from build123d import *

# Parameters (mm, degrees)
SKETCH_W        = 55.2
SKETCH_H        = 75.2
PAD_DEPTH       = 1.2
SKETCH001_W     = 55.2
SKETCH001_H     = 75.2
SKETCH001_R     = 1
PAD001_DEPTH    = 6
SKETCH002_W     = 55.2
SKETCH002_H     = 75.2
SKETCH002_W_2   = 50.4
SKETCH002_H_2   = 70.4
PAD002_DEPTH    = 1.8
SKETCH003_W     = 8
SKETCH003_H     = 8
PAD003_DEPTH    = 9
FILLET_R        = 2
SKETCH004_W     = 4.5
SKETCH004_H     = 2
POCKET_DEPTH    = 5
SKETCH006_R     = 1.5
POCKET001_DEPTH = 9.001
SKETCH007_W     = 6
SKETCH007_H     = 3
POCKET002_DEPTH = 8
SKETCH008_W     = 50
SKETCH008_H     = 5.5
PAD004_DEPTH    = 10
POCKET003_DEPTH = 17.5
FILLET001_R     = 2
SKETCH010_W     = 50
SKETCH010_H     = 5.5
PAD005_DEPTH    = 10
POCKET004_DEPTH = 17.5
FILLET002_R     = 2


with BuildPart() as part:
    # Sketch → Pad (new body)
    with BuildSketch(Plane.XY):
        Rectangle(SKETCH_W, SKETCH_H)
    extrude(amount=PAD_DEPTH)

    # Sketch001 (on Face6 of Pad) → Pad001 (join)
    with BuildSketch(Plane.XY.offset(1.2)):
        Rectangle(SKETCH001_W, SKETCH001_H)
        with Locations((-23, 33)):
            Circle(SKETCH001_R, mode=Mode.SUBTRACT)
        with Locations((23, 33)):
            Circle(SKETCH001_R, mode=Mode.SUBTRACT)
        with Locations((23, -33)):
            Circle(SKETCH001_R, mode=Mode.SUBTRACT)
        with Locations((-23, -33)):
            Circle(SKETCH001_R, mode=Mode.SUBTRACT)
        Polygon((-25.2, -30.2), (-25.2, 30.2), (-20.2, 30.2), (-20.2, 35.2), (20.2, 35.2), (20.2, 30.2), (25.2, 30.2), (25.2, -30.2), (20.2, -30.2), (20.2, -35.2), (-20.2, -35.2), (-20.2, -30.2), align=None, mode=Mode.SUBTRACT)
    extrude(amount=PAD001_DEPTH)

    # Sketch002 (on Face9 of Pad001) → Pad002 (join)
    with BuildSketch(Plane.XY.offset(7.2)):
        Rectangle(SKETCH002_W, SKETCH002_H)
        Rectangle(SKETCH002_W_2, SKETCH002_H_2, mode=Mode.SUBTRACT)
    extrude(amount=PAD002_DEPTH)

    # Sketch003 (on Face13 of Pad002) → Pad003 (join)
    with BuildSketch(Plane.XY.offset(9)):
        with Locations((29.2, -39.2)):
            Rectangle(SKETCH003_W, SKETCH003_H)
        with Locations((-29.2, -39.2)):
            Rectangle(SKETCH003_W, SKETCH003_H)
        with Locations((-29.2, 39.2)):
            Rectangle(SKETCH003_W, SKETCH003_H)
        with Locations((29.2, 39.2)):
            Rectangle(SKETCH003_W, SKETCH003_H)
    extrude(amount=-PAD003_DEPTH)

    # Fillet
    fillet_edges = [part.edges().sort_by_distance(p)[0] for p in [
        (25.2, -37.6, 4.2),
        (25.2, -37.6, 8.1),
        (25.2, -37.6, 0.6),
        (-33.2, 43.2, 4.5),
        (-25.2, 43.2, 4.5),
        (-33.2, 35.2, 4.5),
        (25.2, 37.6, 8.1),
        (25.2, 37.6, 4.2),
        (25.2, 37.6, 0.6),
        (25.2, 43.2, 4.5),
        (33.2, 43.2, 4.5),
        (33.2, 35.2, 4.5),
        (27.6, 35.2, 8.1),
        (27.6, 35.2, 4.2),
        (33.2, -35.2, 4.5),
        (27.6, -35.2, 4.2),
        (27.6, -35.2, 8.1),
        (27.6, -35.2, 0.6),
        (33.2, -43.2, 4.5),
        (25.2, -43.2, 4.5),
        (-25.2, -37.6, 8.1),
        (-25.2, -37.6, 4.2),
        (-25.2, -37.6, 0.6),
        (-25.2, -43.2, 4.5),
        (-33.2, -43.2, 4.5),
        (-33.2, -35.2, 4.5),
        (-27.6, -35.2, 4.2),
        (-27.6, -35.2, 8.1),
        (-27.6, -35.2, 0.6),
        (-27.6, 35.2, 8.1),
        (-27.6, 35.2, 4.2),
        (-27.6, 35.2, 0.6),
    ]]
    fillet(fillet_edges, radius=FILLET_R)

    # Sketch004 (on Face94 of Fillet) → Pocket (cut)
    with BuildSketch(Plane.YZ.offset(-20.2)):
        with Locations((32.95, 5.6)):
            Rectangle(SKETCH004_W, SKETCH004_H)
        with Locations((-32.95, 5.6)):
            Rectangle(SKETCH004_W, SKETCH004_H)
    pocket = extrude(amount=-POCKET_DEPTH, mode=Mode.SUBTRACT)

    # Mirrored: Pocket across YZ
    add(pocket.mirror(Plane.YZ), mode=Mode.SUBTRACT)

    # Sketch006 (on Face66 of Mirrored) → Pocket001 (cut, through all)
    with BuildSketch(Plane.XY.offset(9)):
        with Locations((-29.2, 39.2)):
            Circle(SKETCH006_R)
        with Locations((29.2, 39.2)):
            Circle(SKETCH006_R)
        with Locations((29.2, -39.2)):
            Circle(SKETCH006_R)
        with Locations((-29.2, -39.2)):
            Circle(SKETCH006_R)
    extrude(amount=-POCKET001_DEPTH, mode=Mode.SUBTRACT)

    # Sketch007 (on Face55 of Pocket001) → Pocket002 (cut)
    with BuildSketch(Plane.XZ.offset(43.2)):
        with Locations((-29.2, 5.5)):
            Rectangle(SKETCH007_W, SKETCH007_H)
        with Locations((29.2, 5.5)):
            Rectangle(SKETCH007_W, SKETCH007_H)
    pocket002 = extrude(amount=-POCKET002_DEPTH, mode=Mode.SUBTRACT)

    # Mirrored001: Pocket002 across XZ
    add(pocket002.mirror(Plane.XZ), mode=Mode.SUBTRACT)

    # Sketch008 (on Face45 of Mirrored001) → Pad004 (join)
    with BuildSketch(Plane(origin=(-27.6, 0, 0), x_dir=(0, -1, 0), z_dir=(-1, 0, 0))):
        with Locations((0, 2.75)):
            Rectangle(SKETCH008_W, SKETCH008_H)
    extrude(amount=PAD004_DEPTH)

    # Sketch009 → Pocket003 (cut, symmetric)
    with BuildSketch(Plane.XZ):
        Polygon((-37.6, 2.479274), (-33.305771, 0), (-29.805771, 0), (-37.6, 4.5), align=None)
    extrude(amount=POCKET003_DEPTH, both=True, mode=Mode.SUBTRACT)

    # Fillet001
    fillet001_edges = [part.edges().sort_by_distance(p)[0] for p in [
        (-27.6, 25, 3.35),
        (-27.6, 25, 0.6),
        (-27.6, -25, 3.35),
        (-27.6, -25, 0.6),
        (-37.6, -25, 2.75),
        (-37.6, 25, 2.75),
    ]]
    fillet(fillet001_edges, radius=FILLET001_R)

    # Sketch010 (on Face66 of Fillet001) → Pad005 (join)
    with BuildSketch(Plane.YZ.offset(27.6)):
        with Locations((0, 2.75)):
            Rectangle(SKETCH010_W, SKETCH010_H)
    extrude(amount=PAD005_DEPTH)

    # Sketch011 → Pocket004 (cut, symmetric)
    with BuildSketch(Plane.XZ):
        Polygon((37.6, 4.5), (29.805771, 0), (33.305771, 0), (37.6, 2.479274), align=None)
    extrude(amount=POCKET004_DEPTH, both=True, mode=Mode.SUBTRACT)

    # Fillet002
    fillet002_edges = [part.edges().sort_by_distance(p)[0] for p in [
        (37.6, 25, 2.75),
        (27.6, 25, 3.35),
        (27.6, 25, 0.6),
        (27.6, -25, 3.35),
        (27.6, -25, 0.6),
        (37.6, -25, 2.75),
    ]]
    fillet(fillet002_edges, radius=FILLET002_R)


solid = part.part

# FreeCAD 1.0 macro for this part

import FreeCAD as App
import Part
import Sketcher

V = App.Vector
Q = App.Units.Quantity


def edges_at(feature, points):
    """Names of the edges that pass closest to the given points."""
    edges = feature.Shape.Edges
    near = lambda p: min(range(len(edges)), key=lambda i: edges[i].distToShape(Part.Vertex(*p))[0])
    return sorted({f"Edge{near(p) + 1}" for p in points})

doc = App.newDocument("Part")
body = doc.addObject("PartDesign::Body", "Body")

sketch1 = body.newObject("Sketcher::SketchObject", "Sketch")
sketch1.AttachmentSupport = (doc.getObject("XY_Plane"), [""])
sketch1.MapMode = "FlatFace"
sketch1.addGeometry([
    Part.LineSegment(V(-27.6, 37.6, 0), V(-27.6, -37.6, 0)),
    Part.LineSegment(V(-27.6, -37.6, 0), V(27.6, -37.6, 0)),
    Part.LineSegment(V(27.6, -37.6, 0), V(27.6, 37.6, 0)),
    Part.LineSegment(V(27.6, 37.6, 0), V(-27.6, 37.6, 0)),
], False)
sketch1.addConstraint([
    Sketcher.Constraint("Coincident", 0, 2, 1, 1),
    Sketcher.Constraint("Coincident", 1, 2, 2, 1),
    Sketcher.Constraint("Coincident", 2, 2, 3, 1),
    Sketcher.Constraint("Coincident", 3, 2, 0, 1),
    Sketcher.Constraint("Vertical", 0),
    Sketcher.Constraint("Horizontal", 1),
    Sketcher.Constraint("Vertical", 2),
    Sketcher.Constraint("Horizontal", 3),
    Sketcher.Constraint("Symmetric", 0, 2, 2, 2, -1, 1),
    Sketcher.Constraint("DistanceX", 1, 1, 1, 2, 55.2),
    Sketcher.Constraint("DistanceY", 0, 2, 0, 1, 75.2),
])
pad1 = body.newObject("PartDesign::Pad", "Pad")
pad1.Profile = sketch1
pad1.Length = 1.2

sketch2 = body.newObject("Sketcher::SketchObject", "Sketch001")
sketch2.AttachmentSupport = (doc.getObject("XY_Plane"), [""])
sketch2.MapMode = "FlatFace"
sketch2.AttachmentOffset = App.Placement(V(0, 0, 1.2), App.Rotation())
sketch2.addGeometry([
    Part.LineSegment(V(-27.6, 37.6, 0), V(-27.6, -37.6, 0)),
    Part.LineSegment(V(-27.6, -37.6, 0), V(27.6, -37.6, 0)),
    Part.LineSegment(V(27.6, -37.6, 0), V(27.6, 37.6, 0)),
    Part.LineSegment(V(27.6, 37.6, 0), V(-27.6, 37.6, 0)),
    Part.Circle(V(-23, -33, 0), V(0, 0, 1), 1),
    Part.Circle(V(23, -33, 0), V(0, 0, 1), 1),
    Part.LineSegment(V(-20.2, -30.2, 0), V(-25.2, -30.2, 0)),
    Part.LineSegment(V(-25.2, -30.2, 0), V(-25.2, 30.2, 0)),
    Part.LineSegment(V(-25.2, 30.2, 0), V(-20.2, 30.2, 0)),
    Part.LineSegment(V(-20.2, 30.2, 0), V(-20.2, 35.2, 0)),
    Part.LineSegment(V(-20.2, 35.2, 0), V(20.2, 35.2, 0)),
    Part.LineSegment(V(20.2, 35.2, 0), V(20.2, 30.2, 0)),
    Part.LineSegment(V(20.2, 30.2, 0), V(25.2, 30.2, 0)),
    Part.LineSegment(V(25.2, 30.2, 0), V(25.2, -30.2, 0)),
    Part.LineSegment(V(25.2, -30.2, 0), V(20.2, -30.2, 0)),
    Part.LineSegment(V(20.2, -30.2, 0), V(20.2, -35.2, 0)),
    Part.LineSegment(V(20.2, -35.2, 0), V(-20.2, -35.2, 0)),
    Part.LineSegment(V(-20.2, -35.2, 0), V(-20.2, -30.2, 0)),
    Part.Circle(V(-23, 33, 0), V(0, 0, 1), 1),
    Part.Circle(V(23, 33, 0), V(0, 0, 1), 1),
], False)
sketch2.addConstraint([
    Sketcher.Constraint("Coincident", 0, 2, 1, 1),
    Sketcher.Constraint("Coincident", 1, 2, 2, 1),
    Sketcher.Constraint("Coincident", 2, 2, 3, 1),
    Sketcher.Constraint("Coincident", 3, 2, 0, 1),
    Sketcher.Constraint("Coincident", 6, 2, 7, 1),
    Sketcher.Constraint("Coincident", 7, 2, 8, 1),
    Sketcher.Constraint("Coincident", 8, 2, 9, 1),
    Sketcher.Constraint("Coincident", 9, 2, 10, 1),
    Sketcher.Constraint("Coincident", 10, 2, 11, 1),
    Sketcher.Constraint("Coincident", 11, 2, 12, 1),
    Sketcher.Constraint("Coincident", 12, 2, 13, 1),
    Sketcher.Constraint("Coincident", 13, 2, 14, 1),
    Sketcher.Constraint("Coincident", 14, 2, 15, 1),
    Sketcher.Constraint("Coincident", 15, 2, 16, 1),
    Sketcher.Constraint("Coincident", 16, 2, 17, 1),
    Sketcher.Constraint("Coincident", 17, 2, 6, 1),
    Sketcher.Constraint("Vertical", 0),
    Sketcher.Constraint("Horizontal", 1),
    Sketcher.Constraint("Vertical", 2),
    Sketcher.Constraint("Horizontal", 3),
    Sketcher.Constraint("Horizontal", 6),
    Sketcher.Constraint("Vertical", 7),
    Sketcher.Constraint("Horizontal", 8),
    Sketcher.Constraint("Vertical", 9),
    Sketcher.Constraint("Horizontal", 10),
    Sketcher.Constraint("Vertical", 11),
    Sketcher.Constraint("Horizontal", 12),
    Sketcher.Constraint("Vertical", 13),
    Sketcher.Constraint("Horizontal", 14),
    Sketcher.Constraint("Vertical", 15),
    Sketcher.Constraint("Horizontal", 16),
    Sketcher.Constraint("Vertical", 17),
    Sketcher.Constraint("Equal", 4, 5),
    Sketcher.Constraint("Equal", 5, 18),
    Sketcher.Constraint("Equal", 18, 19),
    Sketcher.Constraint("Symmetric", 5, 3, 18, 3, -1, 1),
    Sketcher.Constraint("Symmetric", 4, 3, 19, 3, -1, 1),
    Sketcher.Constraint("Symmetric", 0, 2, 2, 2, -1, 1),
    Sketcher.Constraint("Symmetric", 6, 2, 12, 2, -1, 1),
    Sketcher.Constraint("Symmetric", 8, 2, 14, 2, -1, 1),
    Sketcher.Constraint("Symmetric", 10, 2, 16, 2, -1, 1),
    Sketcher.Constraint("Symmetric", 4, 3, 5, 3, -2),
    Sketcher.Constraint("Symmetric", 8, 2, 11, 2, -2),
    Sketcher.Constraint("Equal", 14, 9),
    Sketcher.Constraint("Diameter", 4, 2.0),
    Sketcher.Constraint("DistanceX", 6, 2, 6, 1, 5.0),
    Sketcher.Constraint("DistanceX", 1, 1, 1, 2, 55.2),
    Sketcher.Constraint("DistanceX", 10, 1, 10, 2, 40.4),
    Sketcher.Constraint("DistanceY", 0, 2, 0, 1, 75.2),
    Sketcher.Constraint("DistanceY", 7, 1, 7, 2, 60.4),
    Sketcher.Constraint("DistanceX", 4, 3, -1, 1, 23.0),
    Sketcher.Constraint("DistanceY", 4, 3, -1, 1, 33.0),
])
pad2 = body.newObject("PartDesign::Pad", "Pad001")
pad2.Profile = sketch2
pad2.Length = 6

sketch3 = body.newObject("Sketcher::SketchObject", "Sketch002")
sketch3.AttachmentSupport = (doc.getObject("XY_Plane"), [""])
sketch3.MapMode = "FlatFace"
sketch3.AttachmentOffset = App.Placement(V(0, 0, 7.2), App.Rotation())
sketch3.addGeometry([
    Part.LineSegment(V(-27.6, 37.6, 0), V(-27.6, -37.6, 0)),
    Part.LineSegment(V(-27.6, -37.6, 0), V(27.6, -37.6, 0)),
    Part.LineSegment(V(27.6, -37.6, 0), V(27.6, 37.6, 0)),
    Part.LineSegment(V(27.6, 37.6, 0), V(-27.6, 37.6, 0)),
    Part.LineSegment(V(25.2, -35.2, 0), V(-25.2, -35.2, 0)),
    Part.LineSegment(V(-25.2, -35.2, 0), V(-25.2, 35.2, 0)),
    Part.LineSegment(V(-25.2, 35.2, 0), V(25.2, 35.2, 0)),
    Part.LineSegment(V(25.2, 35.2, 0), V(25.2, -35.2, 0)),
], False)
sketch3.addConstraint([
    Sketcher.Constraint("Coincident", 0, 2, 1, 1),
    Sketcher.Constraint("Coincident", 1, 2, 2, 1),
    Sketcher.Constraint("Coincident", 2, 2, 3, 1),
    Sketcher.Constraint("Coincident", 3, 2, 0, 1),
    Sketcher.Constraint("Coincident", 4, 2, 5, 1),
    Sketcher.Constraint("Coincident", 5, 2, 6, 1),
    Sketcher.Constraint("Coincident", 6, 2, 7, 1),
    Sketcher.Constraint("Coincident", 7, 2, 4, 1),
    Sketcher.Constraint("Vertical", 0),
    Sketcher.Constraint("Horizontal", 1),
    Sketcher.Constraint("Vertical", 2),
    Sketcher.Constraint("Horizontal", 3),
    Sketcher.Constraint("Horizontal", 4),
    Sketcher.Constraint("Vertical", 5),
    Sketcher.Constraint("Horizontal", 6),
    Sketcher.Constraint("Vertical", 7),
    Sketcher.Constraint("Symmetric", 0, 2, 2, 2, -1, 1),
    Sketcher.Constraint("Symmetric", 4, 2, 6, 2, -1, 1),
    Sketcher.Constraint("DistanceX", 1, 1, 1, 2, 55.2),
    Sketcher.Constraint("DistanceX", 4, 2, 4, 1, 50.4),
    Sketcher.Constraint("DistanceY", 0, 2, 0, 1, 75.2),
    Sketcher.Constraint("DistanceY", 5, 1, 5, 2, 70.4),
])
pad3 = body.newObject("PartDesign::Pad", "Pad002")
pad3.Profile = sketch3
pad3.Length = 1.8

sketch4 = body.newObject("Sketcher::SketchObject", "Sketch003")
sketch4.AttachmentSupport = (doc.getObject("XY_Plane"), [""])
sketch4.MapMode = "FlatFace"
sketch4.AttachmentOffset = App.Placement(V(0, 0, 9), App.Rotation())
sketch4.addGeometry([
    Part.LineSegment(V(25.2, -35.2, 0), V(25.2, -43.2, 0)),
    Part.LineSegment(V(25.2, -43.2, 0), V(33.2, -43.2, 0)),
    Part.LineSegment(V(33.2, -43.2, 0), V(33.2, -35.2, 0)),
    Part.LineSegment(V(33.2, -35.2, 0), V(25.2, -35.2, 0)),
    Part.LineSegment(V(-33.2, -35.2, 0), V(-33.2, -43.2, 0)),
    Part.LineSegment(V(-33.2, -43.2, 0), V(-25.2, -43.2, 0)),
    Part.LineSegment(V(-25.2, -43.2, 0), V(-25.2, -35.2, 0)),
    Part.LineSegment(V(-25.2, -35.2, 0), V(-33.2, -35.2, 0)),
    Part.LineSegment(V(-33.2, 43.2, 0), V(-33.2, 35.2, 0)),
    Part.LineSegment(V(-33.2, 35.2, 0), V(-25.2, 35.2, 0)),
    Part.LineSegment(V(-25.2, 35.2, 0), V(-25.2, 43.2, 0)),
    Part.LineSegment(V(-25.2, 43.2, 0), V(-33.2, 43.2, 0)),
    Part.LineSegment(V(25.2, 43.2, 0), V(25.2, 35.2, 0)),
    Part.LineSegment(V(25.2, 35.2, 0), V(33.2, 35.2, 0)),
    Part.LineSegment(V(33.2, 35.2, 0), V(33.2, 43.2, 0)),
    Part.LineSegment(V(33.2, 43.2, 0), V(25.2, 43.2, 0)),
], False)
sketch4.addConstraint([
    Sketcher.Constraint("Coincident", 0, 2, 1, 1),
    Sketcher.Constraint("Coincident", 1, 2, 2, 1),
    Sketcher.Constraint("Coincident", 2, 2, 3, 1),
    Sketcher.Constraint("Coincident", 3, 2, 0, 1),
    Sketcher.Constraint("Coincident", 4, 2, 5, 1),
    Sketcher.Constraint("Coincident", 5, 2, 6, 1),
    Sketcher.Constraint("Coincident", 6, 2, 7, 1),
    Sketcher.Constraint("Coincident", 7, 2, 4, 1),
    Sketcher.Constraint("Coincident", 8, 2, 9, 1),
    Sketcher.Constraint("Coincident", 9, 2, 10, 1),
    Sketcher.Constraint("Coincident", 10, 2, 11, 1),
    Sketcher.Constraint("Coincident", 11, 2, 8, 1),
    Sketcher.Constraint("Coincident", 12, 2, 13, 1),
    Sketcher.Constraint("Coincident", 13, 2, 14, 1),
    Sketcher.Constraint("Coincident", 14, 2, 15, 1),
    Sketcher.Constraint("Coincident", 15, 2, 12, 1),
    Sketcher.Constraint("Vertical", 0),
    Sketcher.Constraint("Horizontal", 1),
    Sketcher.Constraint("Vertical", 2),
    Sketcher.Constraint("Horizontal", 3),
    Sketcher.Constraint("Vertical", 4),
    Sketcher.Constraint("Horizontal", 5),
    Sketcher.Constraint("Vertical", 6),
    Sketcher.Constraint("Horizontal", 7),
    Sketcher.Constraint("Vertical", 8),
    Sketcher.Constraint("Horizontal", 9),
    Sketcher.Constraint("Vertical", 10),
    Sketcher.Constraint("Horizontal", 11),
    Sketcher.Constraint("Vertical", 12),
    Sketcher.Constraint("Horizontal", 13),
    Sketcher.Constraint("Vertical", 14),
    Sketcher.Constraint("Horizontal", 15),
    Sketcher.Constraint("Symmetric", 2, 2, 8, 2, -1, 1),
    Sketcher.Constraint("Symmetric", 0, 2, 10, 2, -1, 1),
    Sketcher.Constraint("Symmetric", 6, 2, 12, 2, -1, 1),
    Sketcher.Constraint("Symmetric", 4, 2, 14, 2, -1, 1),
    Sketcher.Constraint("Symmetric", 1, 2, 4, 2, -2),
    Sketcher.Constraint("Symmetric", 3, 2, 6, 2, -2),
    Sketcher.Constraint("Equal", 15, 0),
    Sketcher.Constraint("DistanceX", 1, 1, 1, 2, 8.0),
    Sketcher.Constraint("DistanceX", -1, 1, 0, 2, 25.2),
    Sketcher.Constraint("DistanceY", 0, 2, -1, 1, 43.2),
])
pad4 = body.newObject("PartDesign::Pad", "Pad003")
pad4.Profile = sketch4
pad4.Length = 9
pad4.Reversed = True
doc.recompute()

fillet = body.newObject("PartDesign::Fillet", "Fillet")
fillet.Base = (pad4, edges_at(pad4, [
    (25.2, -37.6, 4.5),
    (25.2, -37.6, 4.5),
    (25.2, -37.6, 4.5),
    (-33.2, 43.2, 4.5),
    (-25.2, 43.2, 4.5),
    (-33.2, 35.2, 4.5),
    (25.2, 37.6, 4.5),
    (25.2, 37.6, 4.5),
    (25.2, 37.6, 4.5),
    (25.2, 43.2, 4.5),
    (33.2, 43.2, 4.5),
    (33.2, 35.2, 4.5),
    (27.6, 35.2, 4.5),
    (27.6, 35.2, 4.5),
    (33.2, -35.2, 4.5),
    (27.6, -35.2, 4.5),
    (27.6, -35.2, 4.5),
    (27.6, -35.2, 4.5),
    (33.2, -43.2, 4.5),
    (25.2, -43.2, 4.5),
    (-25.2, -37.6, 4.5),
    (-25.2, -37.6, 4.5),
    (-25.2, -37.6, 4.5),
    (-25.2, -43.2, 4.5),
    (-33.2, -43.2, 4.5),
    (-33.2, -35.2, 4.5),
    (-27.6, -35.2, 4.5),
    (-27.6, -35.2, 4.5),
    (-27.6, -35.2, 4.5),
    (-27.6, 35.2, 4.5),
    (-27.6, 35.2, 4.5),
    (-27.6, 35.2, 4.5),
]))
fillet.Radius = 2

sketch5 = body.newObject("Sketcher::SketchObject", "Sketch004")
sketch5.AttachmentSupport = (doc.getObject("YZ_Plane"), [""])
sketch5.MapMode = "FlatFace"
sketch5.AttachmentOffset = App.Placement(V(0, 0, -20.2), App.Rotation())
sketch5.addGeometry([
    Part.LineSegment(V(30.7, 6.6, 0), V(30.7, 4.6, 0)),
    Part.LineSegment(V(30.7, 4.6, 0), V(35.2, 4.6, 0)),
    Part.LineSegment(V(35.2, 4.6, 0), V(35.2, 6.6, 0)),
    Part.LineSegment(V(35.2, 6.6, 0), V(30.7, 6.6, 0)),
    Part.LineSegment(V(-35.2, 6.6, 0), V(-35.2, 4.6, 0)),
    Part.LineSegment(V(-35.2, 4.6, 0), V(-30.7, 4.6, 0)),
    Part.LineSegment(V(-30.7, 4.6, 0), V(-30.7, 6.6, 0)),
    Part.LineSegment(V(-30.7, 6.6, 0), V(-35.2, 6.6, 0)),
], False)
sketch5.addConstraint([
    Sketcher.Constraint("Coincident", 0, 2, 1, 1),
    Sketcher.Constraint("Coincident", 1, 2, 2, 1),
    Sketcher.Constraint("Coincident", 2, 2, 3, 1),
    Sketcher.Constraint("Coincident", 3, 2, 0, 1),
    Sketcher.Constraint("Coincident", 4, 2, 5, 1),
    Sketcher.Constraint("Coincident", 5, 2, 6, 1),
    Sketcher.Constraint("Coincident", 6, 2, 7, 1),
    Sketcher.Constraint("Coincident", 7, 2, 4, 1),
    Sketcher.Constraint("Vertical", 0),
    Sketcher.Constraint("Horizontal", 1),
    Sketcher.Constraint("Vertical", 2),
    Sketcher.Constraint("Horizontal", 3),
    Sketcher.Constraint("Vertical", 4),
    Sketcher.Constraint("Horizontal", 5),
    Sketcher.Constraint("Vertical", 6),
    Sketcher.Constraint("Horizontal", 7),
    Sketcher.Constraint("Symmetric", 1, 2, 4, 2, -2),
    Sketcher.Constraint("Symmetric", 3, 2, 6, 2, -2),
    Sketcher.Constraint("DistanceY", 0, 2, 0, 1, 2.0),
    Sketcher.Constraint("DistanceX", 1, 1, 1, 2, 4.5),
    Sketcher.Constraint("DistanceX", -1, 1, 0, 2, 30.7),
    Sketcher.Constraint("DistanceY", -1, 1, 0, 2, 4.6),
])
pocket1 = body.newObject("PartDesign::Pocket", "Pocket")
pocket1.Profile = sketch5
pocket1.Length = 5
doc.recompute()

mirrored = body.newObject("PartDesign::Mirrored", "Mirrored")
mirrored.Originals = [pocket1]
mirrored.MirrorPlane = (doc.getObject("YZ_Plane"), [""])
body.Tip = mirrored

sketch6 = body.newObject("Sketcher::SketchObject", "Sketch005")
sketch6.AttachmentSupport = (doc.getObject("XY_Plane"), [""])
sketch6.MapMode = "FlatFace"
sketch6.AttachmentOffset = App.Placement(V(0, 0, 9), App.Rotation())
sketch6.addGeometry([
    Part.Circle(V(-29.2, 39.2, 0), V(0, 0, 1), 1.5),
    Part.Circle(V(29.2, 39.2, 0), V(0, 0, 1), 1.5),
    Part.Circle(V(29.2, -39.2, 0), V(0, 0, 1), 1.5),
    Part.Circle(V(-29.2, -39.2, 0), V(0, 0, 1), 1.5),
], False)
sketch6.addConstraint([
    Sketcher.Constraint("Equal", 0, 1),
    Sketcher.Constraint("Equal", 1, 2),
    Sketcher.Constraint("Equal", 2, 3),
    Sketcher.Constraint("Symmetric", 0, 3, 2, 3, -1, 1),
    Sketcher.Constraint("Symmetric", 1, 3, 3, 3, -1, 1),
    Sketcher.Constraint("Symmetric", 0, 3, 1, 3, -2),
    Sketcher.Constraint("Diameter", 0, 3.0),
    Sketcher.Constraint("DistanceX", 0, 3, -1, 1, 29.2),
    Sketcher.Constraint("DistanceY", -1, 1, 0, 3, 39.2),
])
pocket2 = body.newObject("PartDesign::Pocket", "Pocket001")
pocket2.Profile = sketch6
pocket2.Type = "ThroughAll"

sketch7 = body.newObject("Sketcher::SketchObject", "Sketch006")
sketch7.AttachmentSupport = (doc.getObject("XZ_Plane"), [""])
sketch7.MapMode = "FlatFace"
sketch7.AttachmentOffset = App.Placement(V(0, 0, 43.2), App.Rotation())
sketch7.addGeometry([
    Part.LineSegment(V(-32.2, 7, 0), V(-32.2, 4, 0)),
    Part.LineSegment(V(-32.2, 4, 0), V(-26.2, 4, 0)),
    Part.LineSegment(V(-26.2, 4, 0), V(-26.2, 7, 0)),
    Part.LineSegment(V(-26.2, 7, 0), V(-32.2, 7, 0)),
    Part.LineSegment(V(26.2, 7, 0), V(26.2, 4, 0)),
    Part.LineSegment(V(26.2, 4, 0), V(32.2, 4, 0)),
    Part.LineSegment(V(32.2, 4, 0), V(32.2, 7, 0)),
    Part.LineSegment(V(32.2, 7, 0), V(26.2, 7, 0)),
], False)
sketch7.addConstraint([
    Sketcher.Constraint("Coincident", 0, 2, 1, 1),
    Sketcher.Constraint("Coincident", 1, 2, 2, 1),
    Sketcher.Constraint("Coincident", 2, 2, 3, 1),
    Sketcher.Constraint("Coincident", 3, 2, 0, 1),
    Sketcher.Constraint("Coincident", 4, 2, 5, 1),
    Sketcher.Constraint("Coincident", 5, 2, 6, 1),
    Sketcher.Constraint("Coincident", 6, 2, 7, 1),
    Sketcher.Constraint("Coincident", 7, 2, 4, 1),
    Sketcher.Constraint("Vertical", 0),
    Sketcher.Constraint("Horizontal", 1),
    Sketcher.Constraint("Vertical", 2),
    Sketcher.Constraint("Horizontal", 3),
    Sketcher.Constraint("Vertical", 4),
    Sketcher.Constraint("Horizontal", 5),
    Sketcher.Constraint("Vertical", 6),
    Sketcher.Constraint("Horizontal", 7),
    Sketcher.Constraint("Symmetric", 1, 2, 4, 2, -2),
    Sketcher.Constraint("Symmetric", 3, 2, 6, 2, -2),
    Sketcher.Constraint("DistanceX", 1, 1, 1, 2, 6.0),
    Sketcher.Constraint("DistanceY", 0, 2, 0, 1, 3.0),
    Sketcher.Constraint("DistanceY", -1, 1, 0, 2, 4.0),
    Sketcher.Constraint("DistanceX", 0, 2, -1, 1, 32.2),
])
pocket3 = body.newObject("PartDesign::Pocket", "Pocket002")
pocket3.Profile = sketch7
pocket3.Length = 8
doc.recompute()

mirrored2 = body.newObject("PartDesign::Mirrored", "Mirrored001")
mirrored2.Originals = [pocket3]
mirrored2.MirrorPlane = (doc.getObject("XZ_Plane"), [""])
body.Tip = mirrored2

sketch8 = body.newObject("Sketcher::SketchObject", "Sketch007")
sketch8.AttachmentSupport = (doc.getObject("YZ_Plane"), [""])
sketch8.MapMode = "FlatFace"
sketch8.AttachmentOffset = App.Placement(V(0, 0, -27.6), App.Rotation())
sketch8.addGeometry([
    Part.LineSegment(V(25, 5.5, 0), V(25, 0, 0)),
    Part.LineSegment(V(25, 0, 0), V(-25, 0, 0)),
    Part.LineSegment(V(-25, 0, 0), V(-25, 5.5, 0)),
    Part.LineSegment(V(-25, 5.5, 0), V(25, 5.5, 0)),
], False)
sketch8.addConstraint([
    Sketcher.Constraint("Coincident", 0, 2, 1, 1),
    Sketcher.Constraint("Coincident", 1, 2, 2, 1),
    Sketcher.Constraint("Coincident", 2, 2, 3, 1),
    Sketcher.Constraint("Coincident", 3, 2, 0, 1),
    Sketcher.Constraint("Vertical", 0),
    Sketcher.Constraint("Horizontal", 1),
    Sketcher.Constraint("Vertical", 2),
    Sketcher.Constraint("Horizontal", 3),
    Sketcher.Constraint("Symmetric", 0, 2, 1, 2, -1, 1),
    Sketcher.Constraint("DistanceX", 1, 2, 1, 1, 50.0),
    Sketcher.Constraint("DistanceY", 0, 2, 0, 1, 5.5),
])
pad5 = body.newObject("PartDesign::Pad", "Pad004")
pad5.Profile = sketch8
pad5.Length = 10
pad5.Reversed = True

sketch9 = body.newObject("Sketcher::SketchObject", "Sketch008")
sketch9.AttachmentSupport = (doc.getObject("XZ_Plane"), [""])
sketch9.MapMode = "FlatFace"
sketch9.addGeometry([
    Part.LineSegment(V(-37.6, 2.479274, 0), V(-33.305771, 0, 0)),
    Part.LineSegment(V(-33.305771, 0, 0), V(-29.805771, 0, 0)),
    Part.LineSegment(V(-29.805771, 0, 0), V(-37.6, 4.5, 0)),
    Part.LineSegment(V(-37.6, 4.5, 0), V(-37.6, 2.479274, 0)),
], False)
sketch9.addConstraint([
    Sketcher.Constraint("Coincident", 0, 2, 1, 1),
    Sketcher.Constraint("Coincident", 1, 2, 2, 1),
    Sketcher.Constraint("Coincident", 2, 2, 3, 1),
    Sketcher.Constraint("Coincident", 3, 2, 0, 1),
    Sketcher.Constraint("Horizontal", 1),
    Sketcher.Constraint("Vertical", 3),
    Sketcher.Constraint("PointOnObject", 0, 2, -1),
    Sketcher.Constraint("Parallel", 0, 2),
    Sketcher.Constraint("Angle", 0, Q("-29.999997 deg")),
    Sketcher.Constraint("Distance", 2, 9.0),
    Sketcher.Constraint("DistanceX", 1, 1, 1, 2, 3.5),
    Sketcher.Constraint("DistanceX", 2, 2, -1, 1, 37.6),
])
pocket4 = body.newObject("PartDesign::Pocket", "Pocket003")
pocket4.Profile = sketch9
pocket4.Length = 35
pocket4.Midplane = True
doc.recompute()

fillet2 = body.newObject("PartDesign::Fillet", "Fillet001")
fillet2.Base = (pocket4, edges_at(pocket4, [
    (-27.6, 25, 2.75),
    (-27.6, 25, 2.75),
    (-27.6, -25, 2.75),
    (-27.6, -25, 2.75),
    (-37.6, -25, 2.75),
    (-37.6, 25, 2.75),
]))
fillet2.Radius = 2

sketch10 = body.newObject("Sketcher::SketchObject", "Sketch009")
sketch10.AttachmentSupport = (doc.getObject("YZ_Plane"), [""])
sketch10.MapMode = "FlatFace"
sketch10.AttachmentOffset = App.Placement(V(0, 0, 27.6), App.Rotation())
sketch10.addGeometry([
    Part.LineSegment(V(-25, 5.5, 0), V(-25, 0, 0)),
    Part.LineSegment(V(-25, 0, 0), V(25, 0, 0)),
    Part.LineSegment(V(25, 0, 0), V(25, 5.5, 0)),
    Part.LineSegment(V(25, 5.5, 0), V(-25, 5.5, 0)),
], False)
sketch10.addConstraint([
    Sketcher.Constraint("Coincident", 0, 2, 1, 1),
    Sketcher.Constraint("Coincident", 1, 2, 2, 1),
    Sketcher.Constraint("Coincident", 2, 2, 3, 1),
    Sketcher.Constraint("Coincident", 3, 2, 0, 1),
    Sketcher.Constraint("Vertical", 0),
    Sketcher.Constraint("Horizontal", 1),
    Sketcher.Constraint("Vertical", 2),
    Sketcher.Constraint("Horizontal", 3),
    Sketcher.Constraint("Symmetric", 0, 2, 1, 2, -1, 1),
    Sketcher.Constraint("DistanceX", 1, 1, 1, 2, 50.0),
    Sketcher.Constraint("DistanceY", 0, 2, 0, 1, 5.5),
])
pad6 = body.newObject("PartDesign::Pad", "Pad005")
pad6.Profile = sketch10
pad6.Length = 10

sketch11 = body.newObject("Sketcher::SketchObject", "Sketch010")
sketch11.AttachmentSupport = (doc.getObject("XZ_Plane"), [""])
sketch11.MapMode = "FlatFace"
sketch11.addGeometry([
    Part.LineSegment(V(37.6, 4.5, 0), V(29.805771, 0, 0)),
    Part.LineSegment(V(29.805771, 0, 0), V(33.305771, 0, 0)),
    Part.LineSegment(V(33.305771, 0, 0), V(37.6, 2.479274, 0)),
    Part.LineSegment(V(37.6, 2.479274, 0), V(37.6, 4.5, 0)),
], False)
sketch11.addConstraint([
    Sketcher.Constraint("Coincident", 0, 2, 1, 1),
    Sketcher.Constraint("Coincident", 1, 2, 2, 1),
    Sketcher.Constraint("Coincident", 2, 2, 3, 1),
    Sketcher.Constraint("Coincident", 3, 2, 0, 1),
    Sketcher.Constraint("Horizontal", 1),
    Sketcher.Constraint("Vertical", 3),
    Sketcher.Constraint("PointOnObject", 0, 2, -1),
    Sketcher.Constraint("Parallel", 0, 2),
    Sketcher.Constraint("Angle", 0, Q("-150.000001 deg")),
    Sketcher.Constraint("Distance", 0, 9.0),
    Sketcher.Constraint("DistanceX", 1, 1, 1, 2, 3.5),
    Sketcher.Constraint("DistanceX", -1, 1, 2, 2, 37.6),
])
pocket5 = body.newObject("PartDesign::Pocket", "Pocket004")
pocket5.Profile = sketch11
pocket5.Length = 35
pocket5.Midplane = True
doc.recompute()

fillet3 = body.newObject("PartDesign::Fillet", "Fillet002")
fillet3.Base = (pocket5, edges_at(pocket5, [
    (37.6, 25, 2.75),
    (27.6, 25, 2.75),
    (27.6, 25, 2.75),
    (27.6, -25, 2.75),
    (27.6, -25, 2.75),
    (37.6, -25, 2.75),
]))
fillet3.Radius = 2

doc.recompute()
